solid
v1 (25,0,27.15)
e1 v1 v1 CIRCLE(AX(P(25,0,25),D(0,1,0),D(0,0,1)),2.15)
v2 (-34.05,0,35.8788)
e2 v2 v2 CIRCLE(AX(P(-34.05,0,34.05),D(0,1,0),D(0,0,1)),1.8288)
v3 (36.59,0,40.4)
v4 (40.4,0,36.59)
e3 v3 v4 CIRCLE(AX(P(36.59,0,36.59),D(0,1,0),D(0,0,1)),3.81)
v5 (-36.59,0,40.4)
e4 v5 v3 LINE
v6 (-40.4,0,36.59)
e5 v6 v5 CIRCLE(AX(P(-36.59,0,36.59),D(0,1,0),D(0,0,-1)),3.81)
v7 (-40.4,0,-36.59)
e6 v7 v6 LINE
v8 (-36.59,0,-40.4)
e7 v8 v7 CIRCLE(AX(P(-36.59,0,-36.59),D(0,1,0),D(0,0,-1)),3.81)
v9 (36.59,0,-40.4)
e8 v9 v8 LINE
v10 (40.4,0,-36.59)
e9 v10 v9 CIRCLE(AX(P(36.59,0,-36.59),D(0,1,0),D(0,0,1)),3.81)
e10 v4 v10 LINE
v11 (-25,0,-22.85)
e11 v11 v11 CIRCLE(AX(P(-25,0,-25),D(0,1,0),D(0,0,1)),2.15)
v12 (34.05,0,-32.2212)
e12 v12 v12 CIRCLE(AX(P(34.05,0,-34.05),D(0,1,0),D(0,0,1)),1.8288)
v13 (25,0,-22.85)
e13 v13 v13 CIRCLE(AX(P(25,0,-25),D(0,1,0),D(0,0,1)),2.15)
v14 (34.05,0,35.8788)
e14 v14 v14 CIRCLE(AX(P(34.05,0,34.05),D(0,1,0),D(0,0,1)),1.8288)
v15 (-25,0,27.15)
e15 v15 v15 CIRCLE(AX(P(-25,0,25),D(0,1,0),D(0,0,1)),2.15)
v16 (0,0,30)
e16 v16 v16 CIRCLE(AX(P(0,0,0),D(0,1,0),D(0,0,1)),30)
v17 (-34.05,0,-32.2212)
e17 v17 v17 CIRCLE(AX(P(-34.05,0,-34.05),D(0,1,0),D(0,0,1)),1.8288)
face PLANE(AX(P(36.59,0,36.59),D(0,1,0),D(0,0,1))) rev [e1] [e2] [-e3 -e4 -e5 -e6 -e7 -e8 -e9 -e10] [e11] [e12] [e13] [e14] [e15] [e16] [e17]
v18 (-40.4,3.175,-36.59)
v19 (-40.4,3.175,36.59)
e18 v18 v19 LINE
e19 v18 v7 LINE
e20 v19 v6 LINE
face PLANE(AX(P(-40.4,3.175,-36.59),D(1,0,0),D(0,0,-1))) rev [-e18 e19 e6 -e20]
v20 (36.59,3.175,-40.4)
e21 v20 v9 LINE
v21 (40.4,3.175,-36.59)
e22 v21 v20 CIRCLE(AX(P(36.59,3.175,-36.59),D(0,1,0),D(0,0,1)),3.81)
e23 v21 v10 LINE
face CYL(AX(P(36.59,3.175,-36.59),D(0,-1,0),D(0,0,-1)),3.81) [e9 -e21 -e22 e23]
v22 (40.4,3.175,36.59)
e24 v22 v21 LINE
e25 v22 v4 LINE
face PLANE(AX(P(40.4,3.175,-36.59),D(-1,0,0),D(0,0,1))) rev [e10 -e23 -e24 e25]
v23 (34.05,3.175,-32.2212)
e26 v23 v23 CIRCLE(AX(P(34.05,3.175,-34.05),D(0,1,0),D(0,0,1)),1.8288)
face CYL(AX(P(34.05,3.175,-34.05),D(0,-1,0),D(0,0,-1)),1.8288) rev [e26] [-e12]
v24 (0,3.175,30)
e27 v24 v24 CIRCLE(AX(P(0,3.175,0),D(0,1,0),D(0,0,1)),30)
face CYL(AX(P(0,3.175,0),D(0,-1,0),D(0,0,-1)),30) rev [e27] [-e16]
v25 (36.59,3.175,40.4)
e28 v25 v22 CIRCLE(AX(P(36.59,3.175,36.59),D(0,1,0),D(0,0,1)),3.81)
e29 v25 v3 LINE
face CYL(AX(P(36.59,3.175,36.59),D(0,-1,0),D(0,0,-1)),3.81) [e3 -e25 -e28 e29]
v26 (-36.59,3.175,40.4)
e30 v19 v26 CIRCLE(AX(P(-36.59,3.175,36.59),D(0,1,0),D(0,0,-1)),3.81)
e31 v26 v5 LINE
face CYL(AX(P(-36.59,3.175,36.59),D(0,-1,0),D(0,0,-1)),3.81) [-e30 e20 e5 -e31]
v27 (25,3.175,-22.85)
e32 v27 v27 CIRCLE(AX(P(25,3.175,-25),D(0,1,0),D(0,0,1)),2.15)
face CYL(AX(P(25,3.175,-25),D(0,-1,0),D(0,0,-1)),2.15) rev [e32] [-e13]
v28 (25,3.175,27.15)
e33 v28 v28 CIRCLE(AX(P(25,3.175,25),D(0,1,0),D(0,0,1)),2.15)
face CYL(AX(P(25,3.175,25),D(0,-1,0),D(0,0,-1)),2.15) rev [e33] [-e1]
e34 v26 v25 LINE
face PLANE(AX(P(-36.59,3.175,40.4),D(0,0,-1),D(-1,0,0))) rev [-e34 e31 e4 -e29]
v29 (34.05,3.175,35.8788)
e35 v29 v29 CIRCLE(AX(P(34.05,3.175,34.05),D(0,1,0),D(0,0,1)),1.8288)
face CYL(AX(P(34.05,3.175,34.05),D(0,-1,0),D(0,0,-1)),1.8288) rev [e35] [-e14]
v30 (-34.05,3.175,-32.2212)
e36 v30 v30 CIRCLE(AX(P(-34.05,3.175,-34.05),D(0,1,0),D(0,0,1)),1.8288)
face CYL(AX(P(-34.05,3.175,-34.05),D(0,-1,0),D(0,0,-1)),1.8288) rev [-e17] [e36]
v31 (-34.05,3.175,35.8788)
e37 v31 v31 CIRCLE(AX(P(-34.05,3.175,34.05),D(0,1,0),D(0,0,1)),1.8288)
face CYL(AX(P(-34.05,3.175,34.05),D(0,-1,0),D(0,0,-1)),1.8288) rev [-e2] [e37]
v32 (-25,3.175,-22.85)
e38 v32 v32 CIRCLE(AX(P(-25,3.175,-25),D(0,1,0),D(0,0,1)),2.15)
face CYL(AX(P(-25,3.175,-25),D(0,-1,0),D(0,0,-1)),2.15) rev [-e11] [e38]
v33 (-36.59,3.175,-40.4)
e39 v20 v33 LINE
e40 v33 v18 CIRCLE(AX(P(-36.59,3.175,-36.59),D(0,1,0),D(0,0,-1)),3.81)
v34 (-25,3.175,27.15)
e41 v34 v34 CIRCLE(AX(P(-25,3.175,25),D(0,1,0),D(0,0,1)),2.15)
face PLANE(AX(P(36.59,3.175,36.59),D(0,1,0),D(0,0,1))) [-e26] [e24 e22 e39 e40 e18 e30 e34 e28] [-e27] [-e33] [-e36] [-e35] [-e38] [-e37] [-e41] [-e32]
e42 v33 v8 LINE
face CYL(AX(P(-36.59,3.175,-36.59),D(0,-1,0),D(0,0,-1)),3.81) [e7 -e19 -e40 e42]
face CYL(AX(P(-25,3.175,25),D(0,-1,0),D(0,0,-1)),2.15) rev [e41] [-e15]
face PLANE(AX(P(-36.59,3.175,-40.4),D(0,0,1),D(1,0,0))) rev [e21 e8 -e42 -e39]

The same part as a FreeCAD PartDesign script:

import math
import FreeCAD as App
import Part
import Sketcher
from FreeCAD import Vector
Q = App.Units.Quantity

doc = App.newDocument("Part")
body = doc.addObject("PartDesign::Body", "Body")

# Sketch on XZ plane
sketch1 = body.newObject("Sketcher::SketchObject", "Sketch")
sketch1.AttachmentSupport = (doc.getObject("XZ_Plane"), [""])
sketch1.MapMode = "FlatFace"
sketch1.addGeometry(Part.LineSegment(Vector(36.6, -40.4, 0), Vector(-36.6, -40.4, 0)), False)
sketch1.addGeometry(Part.ArcOfCircle(Part.Circle(Vector(-36.6, -36.6, 0), Vector(0, 0, 1), 3.8), math.radians(-180), math.radians(-90)), False)
sketch1.addGeometry(Part.LineSegment(Vector(-40.4, -36.6, 0), Vector(-40.4, 36.6, 0)), False)
sketch1.addGeometry(Part.ArcOfCircle(Part.Circle(Vector(-36.6, 36.6, 0), Vector(0, 0, 1), 3.8), math.radians(90), math.radians(180)), False)
sketch1.addGeometry(Part.LineSegment(Vector(-36.6, 40.4, 0), Vector(36.6, 40.4, 0)), False)
sketch1.addGeometry(Part.ArcOfCircle(Part.Circle(Vector(36.6, 36.6, 0), Vector(0, 0, 1), 3.8), math.radians(0), math.radians(90)), False)
sketch1.addGeometry(Part.LineSegment(Vector(40.4, 36.6, 0), Vector(40.4, -36.6, 0)), False)
sketch1.addGeometry(Part.ArcOfCircle(Part.Circle(Vector(36.6, -36.6, 0), Vector(0, 0, 1), 3.8), math.radians(-90), math.radians(0)), False)
sketch1.addGeometry(Part.Circle(Vector(34, 34, 0), Vector(0, 0, 1), 1.8), False)
sketch1.addGeometry(Part.Circle(Vector(25, 25, 0), Vector(0, 0, 1), 2.1), False)
sketch1.addGeometry(Part.Circle(Vector(-34, 34, 0), Vector(0, 0, 1), 1.8), False)
sketch1.addGeometry(Part.Circle(Vector(-25, 25, 0), Vector(0, 0, 1), 2.1), False)
sketch1.addGeometry(Part.Circle(Vector(25, -25, 0), Vector(0, 0, 1), 2.1), False)
sketch1.addGeometry(Part.Circle(Vector(34, -34, 0), Vector(0, 0, 1), 1.8), False)
sketch1.addGeometry(Part.Circle(Vector(0, 0, 0), Vector(0, 0, 1), 30), False)
sketch1.addGeometry(Part.Circle(Vector(-25, -25, 0), Vector(0, 0, 1), 2.1), False)
sketch1.addGeometry(Part.Circle(Vector(-34, -34, 0), Vector(0, 0, 1), 1.8), False)
sketch1.addConstraint(Sketcher.Constraint("Tangent", 0, 2, 1, 2))
sketch1.addConstraint(Sketcher.Constraint("Tangent", 1, 1, 2, 1))
sketch1.addConstraint(Sketcher.Constraint("Tangent", 2, 2, 3, 2))
sketch1.addConstraint(Sketcher.Constraint("Tangent", 3, 1, 4, 1))
sketch1.addConstraint(Sketcher.Constraint("Tangent", 4, 2, 5, 2))
sketch1.addConstraint(Sketcher.Constraint("Tangent", 5, 1, 6, 1))
sketch1.addConstraint(Sketcher.Constraint("Tangent", 6, 2, 7, 2))
sketch1.addConstraint(Sketcher.Constraint("Tangent", 7, 1, 0, 1))
sketch1.addConstraint(Sketcher.Constraint("Horizontal", 0))
sketch1.addConstraint(Sketcher.Constraint("Vertical", 2))
sketch1.addConstraint(Sketcher.Constraint("Horizontal", 4))
sketch1.addConstraint(Sketcher.Constraint("Vertical", 6))
sketch1.addConstraint(Sketcher.Constraint("Coincident", 14, 3, -1, 1))
sketch1.addConstraint(Sketcher.Constraint("Equal", 1, 3))
sketch1.addConstraint(Sketcher.Constraint("Equal", 3, 5))
sketch1.addConstraint(Sketcher.Constraint("Equal", 5, 7))
sketch1.addConstraint(Sketcher.Constraint("Equal", 8, 10))
sketch1.addConstraint(Sketcher.Constraint("Equal", 9, 11))
sketch1.addConstraint(Sketcher.Constraint("Equal", 11, 12))
sketch1.addConstraint(Sketcher.Constraint("Equal", 10, 13))
sketch1.addConstraint(Sketcher.Constraint("Equal", 12, 15))
sketch1.addConstraint(Sketcher.Constraint("Equal", 13, 16))
sketch1.addConstraint(Sketcher.Constraint("Symmetric", 1, 3, 5, 3, -1, 1))
sketch1.addConstraint(Sketcher.Constraint("Symmetric", 11, 3, 12, 3, -1, 1))
sketch1.addConstraint(Sketcher.Constraint("Symmetric", 10, 3, 13, 3, -1, 1))
sketch1.addConstraint(Sketcher.Constraint("Symmetric", 9, 3, 15, 3, -1, 1))
sketch1.addConstraint(Sketcher.Constraint("Symmetric", 8, 3, 16, 3, -1, 1))
sketch1.addConstraint(Sketcher.Constraint("Symmetric", 8, 3, 10, 3, -2))
sketch1.addConstraint(Sketcher.Constraint("Symmetric", 9, 3, 11, 3, -2))
sketch1.addConstraint(Sketcher.Constraint("Equal", 4, 2))
sketch1.addConstraint(Sketcher.Constraint("Radius", 1, Q("0.15 in")))
sketch1.addConstraint(Sketcher.Constraint("Diameter", 8, Q("0.144 in")))
sketch1.addConstraint(Sketcher.Constraint("DistanceX", 8, 3, 5, 3, Q("0.1 in")))
sketch1.addConstraint(Sketcher.Constraint("DistanceY", 8, 3, 5, 3, Q("0.1 in")))
sketch1.addConstraint(Sketcher.Constraint("Diameter", 9, 4.3))
sketch1.addConstraint(Sketcher.Constraint("Diameter", 14, 60.0))
sketch1.addConstraint(Sketcher.Constraint("DistanceX", 0, 2, 0, 1, 73.18))
sketch1.addConstraint(Sketcher.Constraint("DistanceX", -1, 1, 9, 3, 25.0))
sketch1.addConstraint(Sketcher.Constraint("DistanceY", -1, 1, 9, 3, 25.0))
pad1 = body.newObject("PartDesign::Pad", "Pad")
pad1.Profile = sketch1
pad1.Length = Q("0.125 in")
pad1.Reversed = True

doc.recompute()
